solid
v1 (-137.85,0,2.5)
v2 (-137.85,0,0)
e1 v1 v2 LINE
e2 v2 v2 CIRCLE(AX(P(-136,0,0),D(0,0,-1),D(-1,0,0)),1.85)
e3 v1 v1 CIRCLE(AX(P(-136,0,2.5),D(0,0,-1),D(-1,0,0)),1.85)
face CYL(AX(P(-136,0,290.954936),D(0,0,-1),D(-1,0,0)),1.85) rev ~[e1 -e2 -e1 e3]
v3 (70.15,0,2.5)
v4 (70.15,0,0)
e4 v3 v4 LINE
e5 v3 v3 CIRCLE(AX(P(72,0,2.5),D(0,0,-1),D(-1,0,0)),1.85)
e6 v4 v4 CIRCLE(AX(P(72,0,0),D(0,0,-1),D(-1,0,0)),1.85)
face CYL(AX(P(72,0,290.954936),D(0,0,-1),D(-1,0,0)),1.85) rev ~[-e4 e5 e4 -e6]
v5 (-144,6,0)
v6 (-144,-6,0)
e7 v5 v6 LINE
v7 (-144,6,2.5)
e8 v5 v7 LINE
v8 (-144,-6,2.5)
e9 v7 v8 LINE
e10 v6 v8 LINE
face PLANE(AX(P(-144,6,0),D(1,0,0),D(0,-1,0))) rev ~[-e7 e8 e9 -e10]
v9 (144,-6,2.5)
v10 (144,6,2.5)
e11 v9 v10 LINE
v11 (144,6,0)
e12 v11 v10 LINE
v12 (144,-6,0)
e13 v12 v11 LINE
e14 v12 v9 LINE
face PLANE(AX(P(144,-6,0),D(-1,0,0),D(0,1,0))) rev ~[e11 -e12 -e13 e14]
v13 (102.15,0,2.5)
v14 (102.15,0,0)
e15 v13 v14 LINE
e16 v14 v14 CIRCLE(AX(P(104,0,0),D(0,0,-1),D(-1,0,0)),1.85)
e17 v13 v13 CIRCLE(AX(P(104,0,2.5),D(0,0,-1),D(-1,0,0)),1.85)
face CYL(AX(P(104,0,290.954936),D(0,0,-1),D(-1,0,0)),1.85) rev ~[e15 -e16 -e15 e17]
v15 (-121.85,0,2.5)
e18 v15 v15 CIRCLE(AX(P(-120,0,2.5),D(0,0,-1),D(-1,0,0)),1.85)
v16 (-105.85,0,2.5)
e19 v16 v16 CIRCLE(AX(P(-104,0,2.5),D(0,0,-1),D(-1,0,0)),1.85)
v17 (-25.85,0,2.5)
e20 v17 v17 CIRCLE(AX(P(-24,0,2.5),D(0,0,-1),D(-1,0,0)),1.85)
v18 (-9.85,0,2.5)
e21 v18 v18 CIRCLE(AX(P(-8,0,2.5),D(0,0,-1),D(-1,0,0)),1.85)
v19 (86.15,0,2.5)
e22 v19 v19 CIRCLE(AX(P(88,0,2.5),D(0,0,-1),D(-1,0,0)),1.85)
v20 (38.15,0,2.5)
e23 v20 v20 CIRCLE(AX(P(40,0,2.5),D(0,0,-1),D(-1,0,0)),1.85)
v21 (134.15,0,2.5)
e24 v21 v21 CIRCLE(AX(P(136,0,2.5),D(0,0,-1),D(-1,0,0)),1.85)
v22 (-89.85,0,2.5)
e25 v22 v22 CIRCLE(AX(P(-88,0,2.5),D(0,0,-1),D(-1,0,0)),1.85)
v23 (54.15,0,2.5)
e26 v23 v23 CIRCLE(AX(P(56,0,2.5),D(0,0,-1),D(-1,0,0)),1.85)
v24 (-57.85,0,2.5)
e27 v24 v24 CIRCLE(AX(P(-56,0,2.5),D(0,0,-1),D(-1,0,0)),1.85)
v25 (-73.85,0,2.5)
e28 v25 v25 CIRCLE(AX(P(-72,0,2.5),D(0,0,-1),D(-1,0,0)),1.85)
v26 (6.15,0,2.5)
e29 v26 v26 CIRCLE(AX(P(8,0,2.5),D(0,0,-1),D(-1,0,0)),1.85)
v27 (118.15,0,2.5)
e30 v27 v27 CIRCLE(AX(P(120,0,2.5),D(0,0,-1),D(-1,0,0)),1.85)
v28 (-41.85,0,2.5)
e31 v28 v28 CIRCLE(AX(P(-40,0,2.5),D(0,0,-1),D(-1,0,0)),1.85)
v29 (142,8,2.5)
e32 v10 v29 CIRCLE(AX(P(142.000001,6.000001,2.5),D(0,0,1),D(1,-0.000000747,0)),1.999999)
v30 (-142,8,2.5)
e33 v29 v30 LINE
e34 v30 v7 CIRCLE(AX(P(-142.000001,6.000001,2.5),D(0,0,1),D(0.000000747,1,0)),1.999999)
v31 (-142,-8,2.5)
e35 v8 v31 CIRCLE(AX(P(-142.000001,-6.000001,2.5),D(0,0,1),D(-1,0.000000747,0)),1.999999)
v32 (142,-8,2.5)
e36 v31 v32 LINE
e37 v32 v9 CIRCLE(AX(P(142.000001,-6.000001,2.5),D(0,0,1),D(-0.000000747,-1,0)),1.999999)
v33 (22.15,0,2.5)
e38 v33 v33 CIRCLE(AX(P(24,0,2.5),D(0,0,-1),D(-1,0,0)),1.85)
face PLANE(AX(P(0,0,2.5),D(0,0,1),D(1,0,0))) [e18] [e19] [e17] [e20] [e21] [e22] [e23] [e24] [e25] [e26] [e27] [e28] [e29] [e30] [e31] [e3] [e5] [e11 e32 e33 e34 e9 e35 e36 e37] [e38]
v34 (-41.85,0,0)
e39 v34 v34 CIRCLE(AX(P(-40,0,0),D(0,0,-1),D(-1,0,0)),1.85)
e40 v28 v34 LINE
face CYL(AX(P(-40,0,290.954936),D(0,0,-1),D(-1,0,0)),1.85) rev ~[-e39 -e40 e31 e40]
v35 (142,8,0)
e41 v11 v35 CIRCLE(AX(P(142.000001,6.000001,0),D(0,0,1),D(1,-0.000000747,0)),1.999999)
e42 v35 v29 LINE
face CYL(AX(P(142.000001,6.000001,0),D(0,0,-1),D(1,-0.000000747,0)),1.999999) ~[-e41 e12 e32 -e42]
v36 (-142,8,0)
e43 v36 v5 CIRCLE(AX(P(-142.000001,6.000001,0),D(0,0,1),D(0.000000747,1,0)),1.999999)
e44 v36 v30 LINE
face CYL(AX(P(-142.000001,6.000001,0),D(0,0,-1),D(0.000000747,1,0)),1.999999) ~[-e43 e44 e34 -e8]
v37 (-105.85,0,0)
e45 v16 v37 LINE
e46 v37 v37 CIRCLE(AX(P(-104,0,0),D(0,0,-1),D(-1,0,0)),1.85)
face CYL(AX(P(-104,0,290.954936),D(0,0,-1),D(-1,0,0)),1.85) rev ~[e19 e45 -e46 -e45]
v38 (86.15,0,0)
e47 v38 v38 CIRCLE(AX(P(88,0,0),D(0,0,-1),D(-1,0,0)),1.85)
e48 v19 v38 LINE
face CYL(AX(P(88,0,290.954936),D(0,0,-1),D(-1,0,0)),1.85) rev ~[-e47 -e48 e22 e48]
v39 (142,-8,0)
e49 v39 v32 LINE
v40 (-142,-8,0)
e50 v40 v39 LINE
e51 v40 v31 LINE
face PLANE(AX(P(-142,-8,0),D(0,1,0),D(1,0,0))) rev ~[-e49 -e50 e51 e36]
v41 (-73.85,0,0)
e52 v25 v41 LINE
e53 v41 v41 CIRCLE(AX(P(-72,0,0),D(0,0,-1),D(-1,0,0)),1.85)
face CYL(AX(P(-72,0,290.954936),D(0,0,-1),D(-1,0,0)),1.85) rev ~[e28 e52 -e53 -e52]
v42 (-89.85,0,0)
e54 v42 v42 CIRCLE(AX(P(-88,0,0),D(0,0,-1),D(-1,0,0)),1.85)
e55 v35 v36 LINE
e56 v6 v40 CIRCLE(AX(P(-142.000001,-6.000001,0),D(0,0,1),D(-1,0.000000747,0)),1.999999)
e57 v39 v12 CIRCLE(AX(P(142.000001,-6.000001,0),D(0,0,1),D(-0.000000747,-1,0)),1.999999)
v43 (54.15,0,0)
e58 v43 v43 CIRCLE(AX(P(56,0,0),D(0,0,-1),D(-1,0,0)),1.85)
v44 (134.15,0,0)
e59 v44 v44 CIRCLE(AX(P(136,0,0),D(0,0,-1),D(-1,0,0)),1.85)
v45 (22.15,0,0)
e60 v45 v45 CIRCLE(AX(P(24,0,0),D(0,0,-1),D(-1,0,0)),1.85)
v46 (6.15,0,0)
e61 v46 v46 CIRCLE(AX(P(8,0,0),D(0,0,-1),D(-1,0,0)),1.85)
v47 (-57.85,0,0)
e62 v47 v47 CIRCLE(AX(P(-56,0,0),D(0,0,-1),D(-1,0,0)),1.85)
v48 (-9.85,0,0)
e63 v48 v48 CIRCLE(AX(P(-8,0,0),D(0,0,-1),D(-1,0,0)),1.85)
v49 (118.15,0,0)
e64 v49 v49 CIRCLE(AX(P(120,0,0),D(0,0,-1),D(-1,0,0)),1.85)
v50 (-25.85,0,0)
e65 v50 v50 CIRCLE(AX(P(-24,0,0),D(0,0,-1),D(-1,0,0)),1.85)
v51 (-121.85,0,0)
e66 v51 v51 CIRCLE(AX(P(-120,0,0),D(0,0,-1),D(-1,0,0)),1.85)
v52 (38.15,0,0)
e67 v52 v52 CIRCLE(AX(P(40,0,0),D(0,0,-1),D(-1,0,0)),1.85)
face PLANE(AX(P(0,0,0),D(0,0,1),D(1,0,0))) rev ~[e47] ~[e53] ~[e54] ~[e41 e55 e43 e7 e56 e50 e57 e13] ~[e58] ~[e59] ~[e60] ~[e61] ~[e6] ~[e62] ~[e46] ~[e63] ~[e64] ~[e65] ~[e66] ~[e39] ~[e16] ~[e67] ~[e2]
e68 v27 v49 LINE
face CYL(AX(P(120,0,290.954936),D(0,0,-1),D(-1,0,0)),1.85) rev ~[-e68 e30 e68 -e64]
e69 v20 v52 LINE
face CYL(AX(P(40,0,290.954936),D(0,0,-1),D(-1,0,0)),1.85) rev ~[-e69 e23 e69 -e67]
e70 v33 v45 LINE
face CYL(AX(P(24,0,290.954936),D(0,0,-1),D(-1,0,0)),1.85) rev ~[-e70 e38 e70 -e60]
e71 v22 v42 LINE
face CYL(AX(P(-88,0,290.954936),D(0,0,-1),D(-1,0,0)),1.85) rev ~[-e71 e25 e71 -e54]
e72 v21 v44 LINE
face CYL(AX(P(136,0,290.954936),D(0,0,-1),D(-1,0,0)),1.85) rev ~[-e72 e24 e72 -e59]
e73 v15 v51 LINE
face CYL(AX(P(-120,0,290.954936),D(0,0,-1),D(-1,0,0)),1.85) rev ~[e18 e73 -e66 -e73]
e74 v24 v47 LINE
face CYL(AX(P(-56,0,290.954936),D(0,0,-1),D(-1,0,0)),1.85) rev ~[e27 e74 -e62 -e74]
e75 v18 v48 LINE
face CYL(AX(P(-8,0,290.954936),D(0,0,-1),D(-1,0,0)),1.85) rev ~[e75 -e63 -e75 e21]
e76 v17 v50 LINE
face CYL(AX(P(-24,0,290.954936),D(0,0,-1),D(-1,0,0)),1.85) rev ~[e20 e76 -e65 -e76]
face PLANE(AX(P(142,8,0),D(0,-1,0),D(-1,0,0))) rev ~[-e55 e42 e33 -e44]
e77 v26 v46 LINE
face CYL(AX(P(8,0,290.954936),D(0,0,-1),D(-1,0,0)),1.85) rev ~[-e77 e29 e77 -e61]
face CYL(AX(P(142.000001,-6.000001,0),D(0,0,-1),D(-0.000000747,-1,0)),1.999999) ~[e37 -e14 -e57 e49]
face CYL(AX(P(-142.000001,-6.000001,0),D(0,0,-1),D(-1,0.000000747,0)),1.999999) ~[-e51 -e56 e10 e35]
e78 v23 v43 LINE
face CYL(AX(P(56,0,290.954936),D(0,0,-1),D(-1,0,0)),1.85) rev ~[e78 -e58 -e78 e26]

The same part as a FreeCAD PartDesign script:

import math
import FreeCAD as App
import Part
import Sketcher
from FreeCAD import Vector
Q = App.Units.Quantity

doc = App.newDocument("Part")
body = doc.addObject("PartDesign::Body", "Body")

# Sketch on XY plane
sketch1 = body.newObject("Sketcher::SketchObject", "Sketch")
sketch1.AttachmentSupport = (doc.getObject("XY_Plane"), [""])
sketch1.MapMode = "FlatFace"
sketch1.addGeometry([
    Part.ArcOfCircle(Part.Circle(Vector(142.000001, 6.000001, 0), Vector(0, 0, 1), 1.999999), math.radians(-0.000043), math.radians(90.000043)),  # 0
    Part.LineSegment(Vector(142, 8, 0), Vector(-142, 8, 0)),  # 1
    Part.ArcOfCircle(Part.Circle(Vector(-142.000001, 6.000001, 0), Vector(0, 0, 1), 1.999999), math.radians(89.999957), math.radians(180.000043)),  # 2
    Part.LineSegment(Vector(-144, 6, 0), Vector(-144, -6, 0)),  # 3
    Part.ArcOfCircle(Part.Circle(Vector(-142.000001, -6.000001, 0), Vector(0, 0, 1), 1.999999), math.radians(179.999957), math.radians(270.000043)),  # 4
    Part.LineSegment(Vector(-142, -8, 0), Vector(142, -8, 0)),  # 5
    Part.ArcOfCircle(Part.Circle(Vector(142.000001, -6.000001, 0), Vector(0, 0, 1), 1.999999), math.radians(-90.000043), math.radians(0.000043)),  # 6
    Part.LineSegment(Vector(144, -6, 0), Vector(144, 6, 0)),  # 7
], False)
sketch1.addConstraint([
    Sketcher.Constraint("Tangent", 0, 2, 1, 1),
    Sketcher.Constraint("Tangent", 1, 2, 2, 1),
    Sketcher.Constraint("Tangent", 2, 2, 3, 1),
    Sketcher.Constraint("Tangent", 3, 2, 4, 1),
    Sketcher.Constraint("Tangent", 4, 2, 5, 1),
    Sketcher.Constraint("Tangent", 5, 2, 6, 1),
    Sketcher.Constraint("Tangent", 6, 2, 7, 1),
    Sketcher.Constraint("Tangent", 7, 2, 0, 1),
    Sketcher.Constraint("Horizontal", 1),
    Sketcher.Constraint("Vertical", 3),
    Sketcher.Constraint("Horizontal", 5),
    Sketcher.Constraint("Vertical", 7),
    Sketcher.Constraint("Equal", 0, 2),
    Sketcher.Constraint("Equal", 2, 4),
    Sketcher.Constraint("Equal", 4, 6),
    Sketcher.Constraint("Symmetric", 0, 3, 4, 3, -1, 1),
    Sketcher.Constraint("Radius", 0, Q("1.999999 mm")),
    Sketcher.Constraint("DistanceX", 1, 2, 1, 1, Q("284 mm")),
    Sketcher.Constraint("DistanceY", 3, 2, 3, 1, Q("12 mm")),
])
pad1 = body.newObject("PartDesign::Pad", "Pad")
pad1.Profile = sketch1
pad1.Length = 2.5

# Sketch on XY plane
sketch2 = body.newObject("Sketcher::SketchObject", "Sketch001")
sketch2.AttachmentSupport = (doc.getObject("XY_Plane"), [""])
sketch2.MapMode = "FlatFace"
sketch2.AttachmentOffset = App.Placement(Vector(0, 0, 2.5), App.Rotation())
sketch2.addGeometry([
    Part.Circle(Vector(-136, 0, 0), Vector(0, 0, 1), 1.85),  # 0
    Part.Circle(Vector(-120, 0, 0), Vector(0, 0, 1), 1.85),  # 1
    Part.Circle(Vector(-104, 0, 0), Vector(0, 0, 1), 1.85),  # 2
    Part.Circle(Vector(-88, 0, 0), Vector(0, 0, 1), 1.85),  # 3
    Part.Circle(Vector(-72, 0, 0), Vector(0, 0, 1), 1.85),  # 4
    Part.Circle(Vector(-56, 0, 0), Vector(0, 0, 1), 1.85),  # 5
    Part.Circle(Vector(-40, 0, 0), Vector(0, 0, 1), 1.85),  # 6
    Part.Circle(Vector(-24, 0, 0), Vector(0, 0, 1), 1.85),  # 7
    Part.Circle(Vector(-8, 0, 0), Vector(0, 0, 1), 1.85),  # 8
    Part.Circle(Vector(8, 0, 0), Vector(0, 0, 1), 1.85),  # 9
    Part.Circle(Vector(24, 0, 0), Vector(0, 0, 1), 1.85),  # 10
    Part.Circle(Vector(40, 0, 0), Vector(0, 0, 1), 1.85),  # 11
    Part.Circle(Vector(56, 0, 0), Vector(0, 0, 1), 1.85),  # 12
    Part.Circle(Vector(72, 0, 0), Vector(0, 0, 1), 1.85),  # 13
    Part.Circle(Vector(88, 0, 0), Vector(0, 0, 1), 1.85),  # 14
    Part.Circle(Vector(88, 0, 0), Vector(0, 0, 1), 1.85),  # 15
    Part.Circle(Vector(104, 0, 0), Vector(0, 0, 1), 1.85),  # 16
    Part.Circle(Vector(120, 0, 0), Vector(0, 0, 1), 1.85),  # 17
    Part.Circle(Vector(136, 0, 0), Vector(0, 0, 1), 1.85),  # 18
], False)
sketch2.addConstraint([
    Sketcher.Constraint("Coincident", 15, 3, 14, 3),
    Sketcher.Constraint("Equal", 0, 1),
    Sketcher.Constraint("Equal", 1, 2),
    Sketcher.Constraint("Equal", 2, 3),
    Sketcher.Constraint("Equal", 3, 4),
    Sketcher.Constraint("Equal", 4, 5),
    Sketcher.Constraint("Equal", 5, 6),
    Sketcher.Constraint("Equal", 6, 7),
    Sketcher.Constraint("Equal", 7, 8),
    Sketcher.Constraint("Equal", 8, 9),
    Sketcher.Constraint("Equal", 9, 10),
    Sketcher.Constraint("Equal", 10, 11),
    Sketcher.Constraint("Equal", 11, 12),
    Sketcher.Constraint("Equal", 12, 13),
    Sketcher.Constraint("Equal", 13, 14),
    Sketcher.Constraint("Equal", 14, 15),
    Sketcher.Constraint("Equal", 15, 16),
    Sketcher.Constraint("Equal", 16, 17),
    Sketcher.Constraint("Equal", 17, 18),
    Sketcher.Constraint("Symmetric", 8, 3, 9, 3, -1, 1),
    Sketcher.Constraint("Symmetric", 7, 3, 10, 3, -1, 1),
    Sketcher.Constraint("Symmetric", 6, 3, 11, 3, -1, 1),
    Sketcher.Constraint("Symmetric", 5, 3, 12, 3, -1, 1),
    Sketcher.Constraint("Symmetric", 4, 3, 13, 3, -1, 1),
    Sketcher.Constraint("Symmetric", 3, 3, 14, 3, -1, 1),
    Sketcher.Constraint("Symmetric", 2, 3, 16, 3, -1, 1),
    Sketcher.Constraint("Symmetric", 1, 3, 17, 3, -1, 1),
    Sketcher.Constraint("Symmetric", 0, 3, 18, 3, -1, 1),
    Sketcher.Constraint("PointOnObject", 0, 3, -1),
    Sketcher.Constraint("PointOnObject", 1, 3, -1),
    Sketcher.Constraint("PointOnObject", 2, 3, -1),
    Sketcher.Constraint("PointOnObject", 3, 3, -1),
    Sketcher.Constraint("PointOnObject", 4, 3, -1),
    Sketcher.Constraint("PointOnObject", 5, 3, -1),
    Sketcher.Constraint("PointOnObject", 6, 3, -1),
    Sketcher.Constraint("PointOnObject", 7, 3, -1),
    Sketcher.Constraint("PointOnObject", 8, 3, -1),
    Sketcher.Constraint("Diameter", 0, Q("3.7 mm")),
    Sketcher.Constraint("DistanceX", 0, 3, -1, 1, Q("136 mm")),
    Sketcher.Constraint("DistanceX", 1, 3, -1, 1, Q("120 mm")),
    Sketcher.Constraint("DistanceX", 2, 3, -1, 1, Q("104 mm")),
    Sketcher.Constraint("DistanceX", 3, 3, -1, 1, Q("88 mm")),
    Sketcher.Constraint("DistanceX", 4, 3, -1, 1, Q("72 mm")),
    Sketcher.Constraint("DistanceX", 5, 3, -1, 1, Q("56 mm")),
    Sketcher.Constraint("DistanceX", 6, 3, -1, 1, Q("40 mm")),
    Sketcher.Constraint("DistanceX", 7, 3, -1, 1, Q("24 mm")),
    Sketcher.Constraint("DistanceX", 8, 3, -1, 1, Q("8 mm")),
])
doc.recompute()
hole = body.newObject("PartDesign::Hole", "Hole")
hole.Profile = sketch2
hole.ThreadType = "None"
hole.Diameter = 3.7
hole.DepthType = "ThroughAll"

doc.recompute()
